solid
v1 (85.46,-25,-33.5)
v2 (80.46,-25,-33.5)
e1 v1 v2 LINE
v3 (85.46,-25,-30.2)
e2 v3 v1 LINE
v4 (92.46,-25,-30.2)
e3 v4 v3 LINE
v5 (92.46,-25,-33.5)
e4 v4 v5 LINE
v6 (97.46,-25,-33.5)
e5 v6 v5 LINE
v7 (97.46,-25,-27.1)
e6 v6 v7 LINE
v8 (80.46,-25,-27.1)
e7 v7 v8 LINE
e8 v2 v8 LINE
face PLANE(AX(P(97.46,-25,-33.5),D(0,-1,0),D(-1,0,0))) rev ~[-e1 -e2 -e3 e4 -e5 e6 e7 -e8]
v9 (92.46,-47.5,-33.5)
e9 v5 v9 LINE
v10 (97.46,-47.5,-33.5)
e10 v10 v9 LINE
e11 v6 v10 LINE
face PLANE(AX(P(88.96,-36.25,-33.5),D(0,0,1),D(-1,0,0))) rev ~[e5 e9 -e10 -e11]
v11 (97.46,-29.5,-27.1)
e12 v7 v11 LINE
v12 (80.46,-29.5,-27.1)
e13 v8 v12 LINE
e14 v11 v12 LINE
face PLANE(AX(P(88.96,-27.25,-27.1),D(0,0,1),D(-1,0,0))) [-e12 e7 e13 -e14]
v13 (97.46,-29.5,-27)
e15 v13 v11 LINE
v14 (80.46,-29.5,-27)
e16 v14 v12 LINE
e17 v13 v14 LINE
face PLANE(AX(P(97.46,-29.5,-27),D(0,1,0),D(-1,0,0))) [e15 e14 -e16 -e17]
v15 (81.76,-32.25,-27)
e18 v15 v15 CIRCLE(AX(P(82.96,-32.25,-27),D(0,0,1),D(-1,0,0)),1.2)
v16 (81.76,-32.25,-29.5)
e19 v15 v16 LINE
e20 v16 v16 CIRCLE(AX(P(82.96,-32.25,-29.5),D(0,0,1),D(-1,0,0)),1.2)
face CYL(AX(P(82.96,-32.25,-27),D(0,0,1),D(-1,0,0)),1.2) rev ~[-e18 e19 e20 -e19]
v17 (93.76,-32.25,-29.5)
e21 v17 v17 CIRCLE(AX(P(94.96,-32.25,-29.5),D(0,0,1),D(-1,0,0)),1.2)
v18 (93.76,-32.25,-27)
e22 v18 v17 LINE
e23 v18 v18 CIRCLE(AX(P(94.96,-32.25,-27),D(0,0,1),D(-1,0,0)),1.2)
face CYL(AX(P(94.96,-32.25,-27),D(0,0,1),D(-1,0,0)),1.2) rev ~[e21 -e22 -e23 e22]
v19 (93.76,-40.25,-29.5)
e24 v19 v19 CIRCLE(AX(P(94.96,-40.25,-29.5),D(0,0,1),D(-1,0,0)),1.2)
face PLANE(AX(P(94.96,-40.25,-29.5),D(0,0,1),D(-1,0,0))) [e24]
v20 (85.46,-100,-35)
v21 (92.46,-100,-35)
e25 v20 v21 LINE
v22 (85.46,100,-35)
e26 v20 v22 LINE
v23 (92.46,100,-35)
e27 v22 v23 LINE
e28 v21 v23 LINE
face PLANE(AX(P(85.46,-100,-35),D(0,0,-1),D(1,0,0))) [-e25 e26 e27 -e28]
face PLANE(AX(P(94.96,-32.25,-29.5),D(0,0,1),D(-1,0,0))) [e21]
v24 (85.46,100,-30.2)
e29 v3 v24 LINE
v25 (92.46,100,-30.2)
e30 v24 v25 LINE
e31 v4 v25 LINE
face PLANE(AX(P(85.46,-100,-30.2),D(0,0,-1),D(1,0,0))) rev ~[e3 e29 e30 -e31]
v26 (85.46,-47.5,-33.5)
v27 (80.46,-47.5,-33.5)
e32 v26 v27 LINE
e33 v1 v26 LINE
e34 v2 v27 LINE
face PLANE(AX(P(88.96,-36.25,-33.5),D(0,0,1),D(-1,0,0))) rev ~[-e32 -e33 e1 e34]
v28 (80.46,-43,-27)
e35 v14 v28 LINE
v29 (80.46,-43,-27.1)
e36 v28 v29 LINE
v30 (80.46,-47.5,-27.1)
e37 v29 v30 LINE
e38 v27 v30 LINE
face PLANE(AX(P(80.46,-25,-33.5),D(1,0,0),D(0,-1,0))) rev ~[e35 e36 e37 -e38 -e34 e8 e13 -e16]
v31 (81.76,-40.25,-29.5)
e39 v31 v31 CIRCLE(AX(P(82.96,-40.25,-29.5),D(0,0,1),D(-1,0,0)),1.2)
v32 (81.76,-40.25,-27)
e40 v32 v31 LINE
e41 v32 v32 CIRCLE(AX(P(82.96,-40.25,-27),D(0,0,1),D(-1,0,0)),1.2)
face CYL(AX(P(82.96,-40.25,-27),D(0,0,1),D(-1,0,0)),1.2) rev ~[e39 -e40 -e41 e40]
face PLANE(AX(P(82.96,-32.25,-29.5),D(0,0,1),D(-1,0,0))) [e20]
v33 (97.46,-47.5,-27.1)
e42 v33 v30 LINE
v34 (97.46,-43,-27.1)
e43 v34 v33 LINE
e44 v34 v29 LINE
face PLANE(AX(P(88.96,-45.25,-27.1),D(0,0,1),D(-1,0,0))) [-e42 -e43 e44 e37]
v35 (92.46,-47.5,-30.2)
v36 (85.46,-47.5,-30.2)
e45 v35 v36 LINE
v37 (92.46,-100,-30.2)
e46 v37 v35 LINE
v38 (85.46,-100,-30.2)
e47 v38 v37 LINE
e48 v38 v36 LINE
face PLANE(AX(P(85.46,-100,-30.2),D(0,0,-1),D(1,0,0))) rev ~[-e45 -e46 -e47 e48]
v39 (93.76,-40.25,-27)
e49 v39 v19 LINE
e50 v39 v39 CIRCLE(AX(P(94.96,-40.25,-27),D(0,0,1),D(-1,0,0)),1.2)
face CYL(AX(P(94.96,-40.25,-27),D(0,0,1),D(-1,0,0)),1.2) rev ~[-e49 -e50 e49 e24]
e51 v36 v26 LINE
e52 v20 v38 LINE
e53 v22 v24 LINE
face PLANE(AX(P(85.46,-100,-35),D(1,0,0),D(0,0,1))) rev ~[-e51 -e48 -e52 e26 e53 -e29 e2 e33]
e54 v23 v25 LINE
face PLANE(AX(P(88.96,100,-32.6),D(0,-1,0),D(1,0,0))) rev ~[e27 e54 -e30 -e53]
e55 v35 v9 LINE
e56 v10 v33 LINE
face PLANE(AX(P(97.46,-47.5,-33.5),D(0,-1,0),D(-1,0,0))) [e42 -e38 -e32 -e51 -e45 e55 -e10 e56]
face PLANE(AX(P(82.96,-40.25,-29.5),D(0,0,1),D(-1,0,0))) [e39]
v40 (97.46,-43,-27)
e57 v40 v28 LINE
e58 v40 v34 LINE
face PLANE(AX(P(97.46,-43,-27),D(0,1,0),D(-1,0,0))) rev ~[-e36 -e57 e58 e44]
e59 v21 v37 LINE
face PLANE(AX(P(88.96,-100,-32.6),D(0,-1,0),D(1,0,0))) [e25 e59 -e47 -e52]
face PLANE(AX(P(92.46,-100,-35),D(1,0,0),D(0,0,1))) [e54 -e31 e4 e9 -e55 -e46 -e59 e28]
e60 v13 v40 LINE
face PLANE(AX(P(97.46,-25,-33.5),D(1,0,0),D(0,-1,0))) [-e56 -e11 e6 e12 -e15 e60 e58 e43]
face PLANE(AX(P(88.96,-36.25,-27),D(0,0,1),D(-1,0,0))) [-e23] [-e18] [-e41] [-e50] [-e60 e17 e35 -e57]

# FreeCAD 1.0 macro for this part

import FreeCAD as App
import Part
import Sketcher
from FreeCAD import Vector


def add_polygon(sketch, points):
    """Adds a closed chain of lines whose ends are joined by coincident constraints."""
    first, n = sketch.GeometryCount, len(points)
    for a, b in zip(points, points[1:] + points[:1]):
        sketch.addGeometry(Part.LineSegment(App.Vector(*a, 0), App.Vector(*b, 0)), False)
    for i in range(n):
        sketch.addConstraint(Sketcher.Constraint("Coincident", first + i, 2, first + (i + 1) % n, 1))

doc = App.newDocument("Part")
body = doc.addObject("PartDesign::Body", "Body")

# Sketch on XZ plane
sketch1 = body.newObject("Sketcher::SketchObject", "Sketch")
sketch1.AttachmentSupport = (doc.getObject("XZ_Plane"), [""])
sketch1.MapMode = "FlatFace"
add_polygon(sketch1, [(0, 4.8), (0, 0), (7, 0), (7, 4.8)])  # lines 0-3
sketch1.addConstraint([
    Sketcher.Constraint("Vertical", 0),
    Sketcher.Constraint("Horizontal", 1),
    Sketcher.Constraint("Vertical", 2),
    Sketcher.Constraint("Horizontal", 3),
    Sketcher.Constraint("Coincident", 0, 2, -1, 1),
    Sketcher.Constraint("DistanceX", 1, 1, 1, 2, 7.0),
    Sketcher.Constraint("DistanceY", 0, 2, 0, 1, 4.8),
])
pad1 = body.newObject("PartDesign::Pad", "Pad")
pad1.Profile = sketch1
pad1.Length = 200
pad1.Reversed = True

# Sketch on XY plane
sketch2 = body.newObject("Sketcher::SketchObject", "Sketch001")
sketch2.AttachmentSupport = (doc.getObject("XY_Plane"), [""])
sketch2.MapMode = "FlatFace"
sketch2.AttachmentOffset = App.Placement(Vector(0, 0, 1.5), App.Rotation())
add_polygon(sketch2, [(12, 52.5), (12, 75), (-5, 75), (-5, 52.5)])  # lines 0-3
sketch2.addConstraint([
    Sketcher.Constraint("Vertical", 0),
    Sketcher.Constraint("Horizontal", 1),
    Sketcher.Constraint("Vertical", 2),
    Sketcher.Constraint("Horizontal", 3),
    Sketcher.Constraint("DistanceX", 1, 2, 1, 1, 17.0),
    Sketcher.Constraint("DistanceY", 0, 1, 0, 2, 22.5),
    Sketcher.Constraint("DistanceX", -1, 1, 0, 2, 12.0),
    Sketcher.Constraint("DistanceY", -1, 1, 0, 2, 75.0),
])
pad2 = body.newObject("PartDesign::Pad", "Pad001")
pad2.Profile = sketch2
pad2.Length = 6.5

# Sketch on XY plane
sketch3 = body.newObject("Sketcher::SketchObject", "Sketch002")
sketch3.AttachmentSupport = (doc.getObject("XY_Plane"), [""])
sketch3.MapMode = "FlatFace"
sketch3.AttachmentOffset = App.Placement(Vector(0, 0, 8), App.Rotation())
add_polygon(sketch3, [(12, 52.5), (12, 57), (-5, 57), (-5, 52.5)])  # lines 0-3
add_polygon(sketch3, [(12, 70.5), (12, 75), (-5, 75), (-5, 70.5)])  # lines 4-7
sketch3.addConstraint([
    Sketcher.Constraint("Vertical", 0),
    Sketcher.Constraint("Horizontal", 1),
    Sketcher.Constraint("Vertical", 2),
    Sketcher.Constraint("Horizontal", 3),
    Sketcher.Constraint("Vertical", 4),
    Sketcher.Constraint("Horizontal", 5),
    Sketcher.Constraint("Vertical", 6),
    Sketcher.Constraint("Horizontal", 7),
    Sketcher.Constraint("Vertical", 3, 2, 4, 2),
    Sketcher.Constraint("Vertical", 2, 2, 5, 2),
    Sketcher.Constraint("Equal", 2, 4),
    Sketcher.Constraint("DistanceX", 1, 2, 1, 1, 17.0),
    Sketcher.Constraint("DistanceY", 0, 1, 0, 2, 4.5),
    Sketcher.Constraint("DistanceX", -1, 1, 0, 2, 12.0),
    Sketcher.Constraint("DistanceY", -1, 1, 0, 2, 57.0),
    Sketcher.Constraint("DistanceY", -1, 1, 4, 2, 75.0),
])
pocket1 = body.newObject("PartDesign::Pocket", "Pocket")
pocket1.Profile = sketch3
pocket1.Length = 0.1

# Sketch on XY plane
sketch4 = body.newObject("Sketcher::SketchObject", "Sketch003")
sketch4.AttachmentSupport = (doc.getObject("XY_Plane"), [""])
sketch4.MapMode = "FlatFace"
sketch4.AttachmentOffset = App.Placement(Vector(0, 0, 8), App.Rotation())
sketch4.addGeometry([
    Part.Circle(Vector(9.5, 59.75, 0), Vector(0, 0, 1), 1.2),
    Part.Circle(Vector(-2.5, 59.75, 0), Vector(0, 0, 1), 1.2),
    Part.Circle(Vector(-2.5, 67.75, 0), Vector(0, 0, 1), 1.2),
    Part.Circle(Vector(9.5, 67.75, 0), Vector(0, 0, 1), 1.2),
], False)
sketch4.addConstraint([
    Sketcher.Constraint("Equal", 0, 1),
    Sketcher.Constraint("Equal", 1, 2),
    Sketcher.Constraint("Equal", 2, 3),
    Sketcher.Constraint("Horizontal", 0, 3, 1, 3),
    Sketcher.Constraint("Horizontal", 2, 3, 3, 3),
    Sketcher.Constraint("Vertical", 1, 3, 2, 3),
    Sketcher.Constraint("Vertical", 0, 3, 3, 3),
    Sketcher.Constraint("Diameter", 0, 2.4),
    Sketcher.Constraint("DistanceX", 1, 3, 0, 3, 12.0),
    Sketcher.Constraint("DistanceY", 1, 3, 2, 3, 8.0),
    Sketcher.Constraint("DistanceX", -1, 1, 0, 3, 9.5),
    Sketcher.Constraint("DistanceY", -1, 1, 0, 3, 59.75),
])
pocket2 = body.newObject("PartDesign::Pocket", "Pocket001")
pocket2.Profile = sketch4
pocket2.Length = 2.5
body2 = doc.addObject("PartDesign::Body", "Body001")
doc.recompute()

body.Placement = App.Placement(Vector(85.46, -100, -35), App.Rotation(Vector(0, 0, 1), 0))
boolean = body2.newObject("PartDesign::Boolean", "Boolean")
boolean.Type = "Fuse"
boolean.addObjects([body])

doc.recompute()
